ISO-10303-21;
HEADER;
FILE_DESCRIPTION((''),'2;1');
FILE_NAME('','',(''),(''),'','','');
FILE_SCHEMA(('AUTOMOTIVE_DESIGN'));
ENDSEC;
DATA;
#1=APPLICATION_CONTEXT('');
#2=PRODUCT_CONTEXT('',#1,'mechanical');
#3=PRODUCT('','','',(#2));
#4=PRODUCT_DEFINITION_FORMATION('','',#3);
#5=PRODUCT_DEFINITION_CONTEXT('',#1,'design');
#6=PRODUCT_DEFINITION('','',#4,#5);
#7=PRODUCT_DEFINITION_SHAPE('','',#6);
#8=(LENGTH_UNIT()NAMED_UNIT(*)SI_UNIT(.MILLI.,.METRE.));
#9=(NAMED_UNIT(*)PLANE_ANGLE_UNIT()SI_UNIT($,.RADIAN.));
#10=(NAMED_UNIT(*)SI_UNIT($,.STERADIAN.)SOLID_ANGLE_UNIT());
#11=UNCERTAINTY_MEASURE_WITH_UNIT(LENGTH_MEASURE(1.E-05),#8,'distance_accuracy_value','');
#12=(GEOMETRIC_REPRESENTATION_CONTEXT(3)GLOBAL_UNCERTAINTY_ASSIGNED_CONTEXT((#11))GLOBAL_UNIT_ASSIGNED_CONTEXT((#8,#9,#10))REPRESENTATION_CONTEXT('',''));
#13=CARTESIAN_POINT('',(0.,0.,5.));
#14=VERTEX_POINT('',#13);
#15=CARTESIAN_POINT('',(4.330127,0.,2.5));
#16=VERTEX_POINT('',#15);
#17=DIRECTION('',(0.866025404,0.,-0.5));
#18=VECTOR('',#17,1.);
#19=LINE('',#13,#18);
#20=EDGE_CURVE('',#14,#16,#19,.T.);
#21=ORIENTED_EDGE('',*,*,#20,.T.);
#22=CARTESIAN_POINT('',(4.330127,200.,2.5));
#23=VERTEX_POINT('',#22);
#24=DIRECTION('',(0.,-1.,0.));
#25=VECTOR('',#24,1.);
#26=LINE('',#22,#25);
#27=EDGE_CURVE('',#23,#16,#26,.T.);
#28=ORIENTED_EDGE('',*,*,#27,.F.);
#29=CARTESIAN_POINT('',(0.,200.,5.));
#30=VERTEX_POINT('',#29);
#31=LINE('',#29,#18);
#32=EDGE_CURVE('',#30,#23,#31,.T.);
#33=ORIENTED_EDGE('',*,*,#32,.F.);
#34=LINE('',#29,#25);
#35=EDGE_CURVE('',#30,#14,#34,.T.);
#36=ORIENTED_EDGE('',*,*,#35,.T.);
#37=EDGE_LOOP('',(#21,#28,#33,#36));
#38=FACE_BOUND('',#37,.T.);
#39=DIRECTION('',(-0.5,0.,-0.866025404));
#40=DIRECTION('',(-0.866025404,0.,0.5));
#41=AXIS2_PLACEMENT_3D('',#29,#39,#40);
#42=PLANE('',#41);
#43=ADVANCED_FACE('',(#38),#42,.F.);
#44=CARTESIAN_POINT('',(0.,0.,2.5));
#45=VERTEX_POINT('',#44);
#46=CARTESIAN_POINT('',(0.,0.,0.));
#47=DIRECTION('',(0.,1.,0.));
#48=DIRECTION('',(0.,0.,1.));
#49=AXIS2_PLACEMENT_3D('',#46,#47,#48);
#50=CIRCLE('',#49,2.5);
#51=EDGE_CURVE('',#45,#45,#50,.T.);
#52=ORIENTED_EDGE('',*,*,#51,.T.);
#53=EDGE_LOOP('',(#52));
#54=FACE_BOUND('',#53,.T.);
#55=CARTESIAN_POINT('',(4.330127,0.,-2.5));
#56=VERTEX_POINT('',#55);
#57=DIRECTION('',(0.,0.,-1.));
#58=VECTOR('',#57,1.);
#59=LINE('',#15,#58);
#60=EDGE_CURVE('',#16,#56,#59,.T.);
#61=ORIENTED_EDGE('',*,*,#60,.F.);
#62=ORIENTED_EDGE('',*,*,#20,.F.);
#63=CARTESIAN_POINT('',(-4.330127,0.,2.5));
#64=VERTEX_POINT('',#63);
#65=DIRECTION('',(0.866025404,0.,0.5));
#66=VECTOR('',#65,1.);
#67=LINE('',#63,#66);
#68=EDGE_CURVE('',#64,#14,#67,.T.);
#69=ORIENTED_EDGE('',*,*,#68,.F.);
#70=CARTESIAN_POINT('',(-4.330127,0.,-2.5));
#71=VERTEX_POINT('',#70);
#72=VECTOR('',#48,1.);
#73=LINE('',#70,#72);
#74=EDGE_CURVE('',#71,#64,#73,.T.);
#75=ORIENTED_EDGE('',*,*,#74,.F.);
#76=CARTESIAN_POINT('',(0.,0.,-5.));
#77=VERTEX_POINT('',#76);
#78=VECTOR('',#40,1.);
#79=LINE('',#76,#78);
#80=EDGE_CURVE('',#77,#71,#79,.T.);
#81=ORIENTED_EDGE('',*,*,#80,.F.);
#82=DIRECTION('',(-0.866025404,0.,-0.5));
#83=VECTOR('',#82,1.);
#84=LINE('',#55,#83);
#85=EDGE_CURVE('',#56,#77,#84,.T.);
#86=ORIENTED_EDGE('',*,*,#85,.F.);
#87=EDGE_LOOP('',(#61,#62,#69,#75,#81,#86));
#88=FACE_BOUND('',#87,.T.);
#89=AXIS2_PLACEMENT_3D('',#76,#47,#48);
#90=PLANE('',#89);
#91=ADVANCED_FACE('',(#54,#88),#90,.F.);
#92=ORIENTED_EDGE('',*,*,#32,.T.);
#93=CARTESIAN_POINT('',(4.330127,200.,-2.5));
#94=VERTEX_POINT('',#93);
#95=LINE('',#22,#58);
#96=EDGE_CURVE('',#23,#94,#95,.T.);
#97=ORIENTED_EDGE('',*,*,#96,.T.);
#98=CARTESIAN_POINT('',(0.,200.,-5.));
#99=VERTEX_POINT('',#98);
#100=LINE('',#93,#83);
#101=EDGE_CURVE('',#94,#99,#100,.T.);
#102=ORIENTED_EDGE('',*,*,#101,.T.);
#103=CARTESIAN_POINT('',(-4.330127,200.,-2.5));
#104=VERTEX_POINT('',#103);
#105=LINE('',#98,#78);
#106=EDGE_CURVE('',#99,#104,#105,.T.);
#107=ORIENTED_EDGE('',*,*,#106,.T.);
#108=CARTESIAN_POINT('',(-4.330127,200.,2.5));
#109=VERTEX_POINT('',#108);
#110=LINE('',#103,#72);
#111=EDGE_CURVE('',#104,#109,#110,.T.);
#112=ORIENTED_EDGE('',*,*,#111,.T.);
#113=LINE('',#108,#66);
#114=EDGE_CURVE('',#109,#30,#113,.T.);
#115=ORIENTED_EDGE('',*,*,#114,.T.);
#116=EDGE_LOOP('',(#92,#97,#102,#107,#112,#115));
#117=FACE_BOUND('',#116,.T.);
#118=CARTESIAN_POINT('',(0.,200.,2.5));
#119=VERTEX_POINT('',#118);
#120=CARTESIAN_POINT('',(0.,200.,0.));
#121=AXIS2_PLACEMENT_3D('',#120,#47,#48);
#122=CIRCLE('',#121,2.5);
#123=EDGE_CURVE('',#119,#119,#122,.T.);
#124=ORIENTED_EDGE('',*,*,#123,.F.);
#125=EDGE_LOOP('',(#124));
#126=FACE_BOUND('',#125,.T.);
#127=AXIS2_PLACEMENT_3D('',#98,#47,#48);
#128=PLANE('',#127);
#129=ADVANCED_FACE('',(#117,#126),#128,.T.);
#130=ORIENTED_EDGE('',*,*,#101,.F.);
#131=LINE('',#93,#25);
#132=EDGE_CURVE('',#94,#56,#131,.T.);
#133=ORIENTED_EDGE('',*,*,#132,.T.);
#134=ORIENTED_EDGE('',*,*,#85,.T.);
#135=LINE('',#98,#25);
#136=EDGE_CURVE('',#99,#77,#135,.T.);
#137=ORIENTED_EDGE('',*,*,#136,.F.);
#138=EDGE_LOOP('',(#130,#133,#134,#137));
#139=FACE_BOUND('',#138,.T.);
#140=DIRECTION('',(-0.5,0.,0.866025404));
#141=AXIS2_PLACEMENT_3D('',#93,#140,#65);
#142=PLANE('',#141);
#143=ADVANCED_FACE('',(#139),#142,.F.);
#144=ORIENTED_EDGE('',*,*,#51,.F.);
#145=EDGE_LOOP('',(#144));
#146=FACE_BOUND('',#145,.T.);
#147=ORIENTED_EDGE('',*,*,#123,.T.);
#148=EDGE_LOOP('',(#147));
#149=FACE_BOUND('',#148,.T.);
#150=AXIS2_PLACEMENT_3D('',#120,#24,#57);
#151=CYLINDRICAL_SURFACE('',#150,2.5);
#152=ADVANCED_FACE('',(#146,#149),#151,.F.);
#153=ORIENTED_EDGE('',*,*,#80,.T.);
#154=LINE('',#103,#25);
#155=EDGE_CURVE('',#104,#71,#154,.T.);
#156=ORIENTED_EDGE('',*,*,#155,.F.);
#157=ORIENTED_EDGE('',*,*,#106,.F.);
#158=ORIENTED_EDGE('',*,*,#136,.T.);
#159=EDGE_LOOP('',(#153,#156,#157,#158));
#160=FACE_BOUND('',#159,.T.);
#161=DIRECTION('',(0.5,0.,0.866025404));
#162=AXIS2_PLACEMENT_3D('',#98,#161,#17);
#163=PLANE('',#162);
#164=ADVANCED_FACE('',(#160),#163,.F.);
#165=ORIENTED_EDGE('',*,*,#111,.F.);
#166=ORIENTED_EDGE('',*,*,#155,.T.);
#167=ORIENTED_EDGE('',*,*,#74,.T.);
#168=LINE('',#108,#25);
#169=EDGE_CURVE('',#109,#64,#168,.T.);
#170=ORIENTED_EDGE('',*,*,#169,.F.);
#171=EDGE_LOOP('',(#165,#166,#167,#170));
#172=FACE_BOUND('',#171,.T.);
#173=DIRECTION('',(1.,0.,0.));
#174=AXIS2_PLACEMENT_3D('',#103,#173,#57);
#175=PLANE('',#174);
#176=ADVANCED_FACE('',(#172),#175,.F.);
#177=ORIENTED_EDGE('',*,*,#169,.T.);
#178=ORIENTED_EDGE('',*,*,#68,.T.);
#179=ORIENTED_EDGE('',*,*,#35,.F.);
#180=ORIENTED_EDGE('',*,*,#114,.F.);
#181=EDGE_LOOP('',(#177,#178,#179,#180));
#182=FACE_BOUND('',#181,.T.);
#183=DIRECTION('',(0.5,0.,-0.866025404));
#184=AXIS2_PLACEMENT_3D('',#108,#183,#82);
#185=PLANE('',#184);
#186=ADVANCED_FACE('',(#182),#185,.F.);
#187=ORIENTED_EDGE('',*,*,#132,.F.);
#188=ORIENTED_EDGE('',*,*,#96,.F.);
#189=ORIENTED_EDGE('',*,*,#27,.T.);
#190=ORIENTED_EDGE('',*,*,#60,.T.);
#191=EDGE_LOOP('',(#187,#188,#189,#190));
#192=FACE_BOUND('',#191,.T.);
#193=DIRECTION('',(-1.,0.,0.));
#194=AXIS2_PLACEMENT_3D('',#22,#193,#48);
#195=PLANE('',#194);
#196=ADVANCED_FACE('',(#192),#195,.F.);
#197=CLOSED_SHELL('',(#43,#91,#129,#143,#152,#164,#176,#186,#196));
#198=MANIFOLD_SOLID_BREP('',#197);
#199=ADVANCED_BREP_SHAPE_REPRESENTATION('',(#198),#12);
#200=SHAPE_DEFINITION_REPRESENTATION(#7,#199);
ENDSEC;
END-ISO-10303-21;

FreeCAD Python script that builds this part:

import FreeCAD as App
import Part
import Sketcher

V = App.Vector
Q = App.Units.Quantity


def add_polygon(sketch, points):
    """Adds a closed chain of lines whose ends are joined by coincident constraints."""
    first, n = sketch.GeometryCount, len(points)
    for a, b in zip(points, points[1:] + points[:1]):
        sketch.addGeometry(Part.LineSegment(App.Vector(*a, 0), App.Vector(*b, 0)), False)
    for i in range(n):
        sketch.addConstraint(Sketcher.Constraint("Coincident", first + i, 2, first + (i + 1) % n, 1))

doc = App.newDocument("Part")
body = doc.addObject("PartDesign::Body", "Body")

# Sketch on XZ plane
sketch1 = doc.addObject("Sketcher::SketchObject", "Sketch")
body.addObject(sketch1)
sketch1.AttachmentSupport = (doc.XZ_Plane, [""])
sketch1.MapMode = "FlatFace"
add_polygon(sketch1, [(0, -5), (-4.3, -2.5), (-4.3, 2.5), (0, 5), (4.3, 2.5), (4.3, -2.5)])  # lines 0-5
sketch1.addGeometry(Part.Circle(V(0, 0, 0), V(0, 0, 1), 2.5), False)  # 6
sketch1.addConstraint([
    Sketcher.Constraint("Vertical", 1),
    Sketcher.Constraint("Vertical", 4),
    Sketcher.Constraint("Coincident", 6, 3, -1, 1),
    Sketcher.Constraint("Symmetric", 0, 2, 3, 2, -1, 1),
    Sketcher.Constraint("Symmetric", 2, 2, 5, 2, -1, 1),
    Sketcher.Constraint("PointOnObject", 2, 2, -2),
    Sketcher.Constraint("Parallel", 2, 5),
    Sketcher.Constraint("Horizontal", 1, 2, 3, 2),
    Sketcher.Constraint("Diameter", 6, Q("5 mm")),
    Sketcher.Constraint("DistanceY", 1, 1, 1, 2, Q("5 mm")),
    Sketcher.Constraint("Angle", 0, Q("150 deg")),
    Sketcher.Constraint("Distance", 0, Q("5 mm")),
])
pad1 = doc.addObject("PartDesign::Pad", "Pad")
body.addObject(pad1)
pad1.Profile = sketch1
pad1.Length = 200
pad1.Reversed = True

doc.recompute()
